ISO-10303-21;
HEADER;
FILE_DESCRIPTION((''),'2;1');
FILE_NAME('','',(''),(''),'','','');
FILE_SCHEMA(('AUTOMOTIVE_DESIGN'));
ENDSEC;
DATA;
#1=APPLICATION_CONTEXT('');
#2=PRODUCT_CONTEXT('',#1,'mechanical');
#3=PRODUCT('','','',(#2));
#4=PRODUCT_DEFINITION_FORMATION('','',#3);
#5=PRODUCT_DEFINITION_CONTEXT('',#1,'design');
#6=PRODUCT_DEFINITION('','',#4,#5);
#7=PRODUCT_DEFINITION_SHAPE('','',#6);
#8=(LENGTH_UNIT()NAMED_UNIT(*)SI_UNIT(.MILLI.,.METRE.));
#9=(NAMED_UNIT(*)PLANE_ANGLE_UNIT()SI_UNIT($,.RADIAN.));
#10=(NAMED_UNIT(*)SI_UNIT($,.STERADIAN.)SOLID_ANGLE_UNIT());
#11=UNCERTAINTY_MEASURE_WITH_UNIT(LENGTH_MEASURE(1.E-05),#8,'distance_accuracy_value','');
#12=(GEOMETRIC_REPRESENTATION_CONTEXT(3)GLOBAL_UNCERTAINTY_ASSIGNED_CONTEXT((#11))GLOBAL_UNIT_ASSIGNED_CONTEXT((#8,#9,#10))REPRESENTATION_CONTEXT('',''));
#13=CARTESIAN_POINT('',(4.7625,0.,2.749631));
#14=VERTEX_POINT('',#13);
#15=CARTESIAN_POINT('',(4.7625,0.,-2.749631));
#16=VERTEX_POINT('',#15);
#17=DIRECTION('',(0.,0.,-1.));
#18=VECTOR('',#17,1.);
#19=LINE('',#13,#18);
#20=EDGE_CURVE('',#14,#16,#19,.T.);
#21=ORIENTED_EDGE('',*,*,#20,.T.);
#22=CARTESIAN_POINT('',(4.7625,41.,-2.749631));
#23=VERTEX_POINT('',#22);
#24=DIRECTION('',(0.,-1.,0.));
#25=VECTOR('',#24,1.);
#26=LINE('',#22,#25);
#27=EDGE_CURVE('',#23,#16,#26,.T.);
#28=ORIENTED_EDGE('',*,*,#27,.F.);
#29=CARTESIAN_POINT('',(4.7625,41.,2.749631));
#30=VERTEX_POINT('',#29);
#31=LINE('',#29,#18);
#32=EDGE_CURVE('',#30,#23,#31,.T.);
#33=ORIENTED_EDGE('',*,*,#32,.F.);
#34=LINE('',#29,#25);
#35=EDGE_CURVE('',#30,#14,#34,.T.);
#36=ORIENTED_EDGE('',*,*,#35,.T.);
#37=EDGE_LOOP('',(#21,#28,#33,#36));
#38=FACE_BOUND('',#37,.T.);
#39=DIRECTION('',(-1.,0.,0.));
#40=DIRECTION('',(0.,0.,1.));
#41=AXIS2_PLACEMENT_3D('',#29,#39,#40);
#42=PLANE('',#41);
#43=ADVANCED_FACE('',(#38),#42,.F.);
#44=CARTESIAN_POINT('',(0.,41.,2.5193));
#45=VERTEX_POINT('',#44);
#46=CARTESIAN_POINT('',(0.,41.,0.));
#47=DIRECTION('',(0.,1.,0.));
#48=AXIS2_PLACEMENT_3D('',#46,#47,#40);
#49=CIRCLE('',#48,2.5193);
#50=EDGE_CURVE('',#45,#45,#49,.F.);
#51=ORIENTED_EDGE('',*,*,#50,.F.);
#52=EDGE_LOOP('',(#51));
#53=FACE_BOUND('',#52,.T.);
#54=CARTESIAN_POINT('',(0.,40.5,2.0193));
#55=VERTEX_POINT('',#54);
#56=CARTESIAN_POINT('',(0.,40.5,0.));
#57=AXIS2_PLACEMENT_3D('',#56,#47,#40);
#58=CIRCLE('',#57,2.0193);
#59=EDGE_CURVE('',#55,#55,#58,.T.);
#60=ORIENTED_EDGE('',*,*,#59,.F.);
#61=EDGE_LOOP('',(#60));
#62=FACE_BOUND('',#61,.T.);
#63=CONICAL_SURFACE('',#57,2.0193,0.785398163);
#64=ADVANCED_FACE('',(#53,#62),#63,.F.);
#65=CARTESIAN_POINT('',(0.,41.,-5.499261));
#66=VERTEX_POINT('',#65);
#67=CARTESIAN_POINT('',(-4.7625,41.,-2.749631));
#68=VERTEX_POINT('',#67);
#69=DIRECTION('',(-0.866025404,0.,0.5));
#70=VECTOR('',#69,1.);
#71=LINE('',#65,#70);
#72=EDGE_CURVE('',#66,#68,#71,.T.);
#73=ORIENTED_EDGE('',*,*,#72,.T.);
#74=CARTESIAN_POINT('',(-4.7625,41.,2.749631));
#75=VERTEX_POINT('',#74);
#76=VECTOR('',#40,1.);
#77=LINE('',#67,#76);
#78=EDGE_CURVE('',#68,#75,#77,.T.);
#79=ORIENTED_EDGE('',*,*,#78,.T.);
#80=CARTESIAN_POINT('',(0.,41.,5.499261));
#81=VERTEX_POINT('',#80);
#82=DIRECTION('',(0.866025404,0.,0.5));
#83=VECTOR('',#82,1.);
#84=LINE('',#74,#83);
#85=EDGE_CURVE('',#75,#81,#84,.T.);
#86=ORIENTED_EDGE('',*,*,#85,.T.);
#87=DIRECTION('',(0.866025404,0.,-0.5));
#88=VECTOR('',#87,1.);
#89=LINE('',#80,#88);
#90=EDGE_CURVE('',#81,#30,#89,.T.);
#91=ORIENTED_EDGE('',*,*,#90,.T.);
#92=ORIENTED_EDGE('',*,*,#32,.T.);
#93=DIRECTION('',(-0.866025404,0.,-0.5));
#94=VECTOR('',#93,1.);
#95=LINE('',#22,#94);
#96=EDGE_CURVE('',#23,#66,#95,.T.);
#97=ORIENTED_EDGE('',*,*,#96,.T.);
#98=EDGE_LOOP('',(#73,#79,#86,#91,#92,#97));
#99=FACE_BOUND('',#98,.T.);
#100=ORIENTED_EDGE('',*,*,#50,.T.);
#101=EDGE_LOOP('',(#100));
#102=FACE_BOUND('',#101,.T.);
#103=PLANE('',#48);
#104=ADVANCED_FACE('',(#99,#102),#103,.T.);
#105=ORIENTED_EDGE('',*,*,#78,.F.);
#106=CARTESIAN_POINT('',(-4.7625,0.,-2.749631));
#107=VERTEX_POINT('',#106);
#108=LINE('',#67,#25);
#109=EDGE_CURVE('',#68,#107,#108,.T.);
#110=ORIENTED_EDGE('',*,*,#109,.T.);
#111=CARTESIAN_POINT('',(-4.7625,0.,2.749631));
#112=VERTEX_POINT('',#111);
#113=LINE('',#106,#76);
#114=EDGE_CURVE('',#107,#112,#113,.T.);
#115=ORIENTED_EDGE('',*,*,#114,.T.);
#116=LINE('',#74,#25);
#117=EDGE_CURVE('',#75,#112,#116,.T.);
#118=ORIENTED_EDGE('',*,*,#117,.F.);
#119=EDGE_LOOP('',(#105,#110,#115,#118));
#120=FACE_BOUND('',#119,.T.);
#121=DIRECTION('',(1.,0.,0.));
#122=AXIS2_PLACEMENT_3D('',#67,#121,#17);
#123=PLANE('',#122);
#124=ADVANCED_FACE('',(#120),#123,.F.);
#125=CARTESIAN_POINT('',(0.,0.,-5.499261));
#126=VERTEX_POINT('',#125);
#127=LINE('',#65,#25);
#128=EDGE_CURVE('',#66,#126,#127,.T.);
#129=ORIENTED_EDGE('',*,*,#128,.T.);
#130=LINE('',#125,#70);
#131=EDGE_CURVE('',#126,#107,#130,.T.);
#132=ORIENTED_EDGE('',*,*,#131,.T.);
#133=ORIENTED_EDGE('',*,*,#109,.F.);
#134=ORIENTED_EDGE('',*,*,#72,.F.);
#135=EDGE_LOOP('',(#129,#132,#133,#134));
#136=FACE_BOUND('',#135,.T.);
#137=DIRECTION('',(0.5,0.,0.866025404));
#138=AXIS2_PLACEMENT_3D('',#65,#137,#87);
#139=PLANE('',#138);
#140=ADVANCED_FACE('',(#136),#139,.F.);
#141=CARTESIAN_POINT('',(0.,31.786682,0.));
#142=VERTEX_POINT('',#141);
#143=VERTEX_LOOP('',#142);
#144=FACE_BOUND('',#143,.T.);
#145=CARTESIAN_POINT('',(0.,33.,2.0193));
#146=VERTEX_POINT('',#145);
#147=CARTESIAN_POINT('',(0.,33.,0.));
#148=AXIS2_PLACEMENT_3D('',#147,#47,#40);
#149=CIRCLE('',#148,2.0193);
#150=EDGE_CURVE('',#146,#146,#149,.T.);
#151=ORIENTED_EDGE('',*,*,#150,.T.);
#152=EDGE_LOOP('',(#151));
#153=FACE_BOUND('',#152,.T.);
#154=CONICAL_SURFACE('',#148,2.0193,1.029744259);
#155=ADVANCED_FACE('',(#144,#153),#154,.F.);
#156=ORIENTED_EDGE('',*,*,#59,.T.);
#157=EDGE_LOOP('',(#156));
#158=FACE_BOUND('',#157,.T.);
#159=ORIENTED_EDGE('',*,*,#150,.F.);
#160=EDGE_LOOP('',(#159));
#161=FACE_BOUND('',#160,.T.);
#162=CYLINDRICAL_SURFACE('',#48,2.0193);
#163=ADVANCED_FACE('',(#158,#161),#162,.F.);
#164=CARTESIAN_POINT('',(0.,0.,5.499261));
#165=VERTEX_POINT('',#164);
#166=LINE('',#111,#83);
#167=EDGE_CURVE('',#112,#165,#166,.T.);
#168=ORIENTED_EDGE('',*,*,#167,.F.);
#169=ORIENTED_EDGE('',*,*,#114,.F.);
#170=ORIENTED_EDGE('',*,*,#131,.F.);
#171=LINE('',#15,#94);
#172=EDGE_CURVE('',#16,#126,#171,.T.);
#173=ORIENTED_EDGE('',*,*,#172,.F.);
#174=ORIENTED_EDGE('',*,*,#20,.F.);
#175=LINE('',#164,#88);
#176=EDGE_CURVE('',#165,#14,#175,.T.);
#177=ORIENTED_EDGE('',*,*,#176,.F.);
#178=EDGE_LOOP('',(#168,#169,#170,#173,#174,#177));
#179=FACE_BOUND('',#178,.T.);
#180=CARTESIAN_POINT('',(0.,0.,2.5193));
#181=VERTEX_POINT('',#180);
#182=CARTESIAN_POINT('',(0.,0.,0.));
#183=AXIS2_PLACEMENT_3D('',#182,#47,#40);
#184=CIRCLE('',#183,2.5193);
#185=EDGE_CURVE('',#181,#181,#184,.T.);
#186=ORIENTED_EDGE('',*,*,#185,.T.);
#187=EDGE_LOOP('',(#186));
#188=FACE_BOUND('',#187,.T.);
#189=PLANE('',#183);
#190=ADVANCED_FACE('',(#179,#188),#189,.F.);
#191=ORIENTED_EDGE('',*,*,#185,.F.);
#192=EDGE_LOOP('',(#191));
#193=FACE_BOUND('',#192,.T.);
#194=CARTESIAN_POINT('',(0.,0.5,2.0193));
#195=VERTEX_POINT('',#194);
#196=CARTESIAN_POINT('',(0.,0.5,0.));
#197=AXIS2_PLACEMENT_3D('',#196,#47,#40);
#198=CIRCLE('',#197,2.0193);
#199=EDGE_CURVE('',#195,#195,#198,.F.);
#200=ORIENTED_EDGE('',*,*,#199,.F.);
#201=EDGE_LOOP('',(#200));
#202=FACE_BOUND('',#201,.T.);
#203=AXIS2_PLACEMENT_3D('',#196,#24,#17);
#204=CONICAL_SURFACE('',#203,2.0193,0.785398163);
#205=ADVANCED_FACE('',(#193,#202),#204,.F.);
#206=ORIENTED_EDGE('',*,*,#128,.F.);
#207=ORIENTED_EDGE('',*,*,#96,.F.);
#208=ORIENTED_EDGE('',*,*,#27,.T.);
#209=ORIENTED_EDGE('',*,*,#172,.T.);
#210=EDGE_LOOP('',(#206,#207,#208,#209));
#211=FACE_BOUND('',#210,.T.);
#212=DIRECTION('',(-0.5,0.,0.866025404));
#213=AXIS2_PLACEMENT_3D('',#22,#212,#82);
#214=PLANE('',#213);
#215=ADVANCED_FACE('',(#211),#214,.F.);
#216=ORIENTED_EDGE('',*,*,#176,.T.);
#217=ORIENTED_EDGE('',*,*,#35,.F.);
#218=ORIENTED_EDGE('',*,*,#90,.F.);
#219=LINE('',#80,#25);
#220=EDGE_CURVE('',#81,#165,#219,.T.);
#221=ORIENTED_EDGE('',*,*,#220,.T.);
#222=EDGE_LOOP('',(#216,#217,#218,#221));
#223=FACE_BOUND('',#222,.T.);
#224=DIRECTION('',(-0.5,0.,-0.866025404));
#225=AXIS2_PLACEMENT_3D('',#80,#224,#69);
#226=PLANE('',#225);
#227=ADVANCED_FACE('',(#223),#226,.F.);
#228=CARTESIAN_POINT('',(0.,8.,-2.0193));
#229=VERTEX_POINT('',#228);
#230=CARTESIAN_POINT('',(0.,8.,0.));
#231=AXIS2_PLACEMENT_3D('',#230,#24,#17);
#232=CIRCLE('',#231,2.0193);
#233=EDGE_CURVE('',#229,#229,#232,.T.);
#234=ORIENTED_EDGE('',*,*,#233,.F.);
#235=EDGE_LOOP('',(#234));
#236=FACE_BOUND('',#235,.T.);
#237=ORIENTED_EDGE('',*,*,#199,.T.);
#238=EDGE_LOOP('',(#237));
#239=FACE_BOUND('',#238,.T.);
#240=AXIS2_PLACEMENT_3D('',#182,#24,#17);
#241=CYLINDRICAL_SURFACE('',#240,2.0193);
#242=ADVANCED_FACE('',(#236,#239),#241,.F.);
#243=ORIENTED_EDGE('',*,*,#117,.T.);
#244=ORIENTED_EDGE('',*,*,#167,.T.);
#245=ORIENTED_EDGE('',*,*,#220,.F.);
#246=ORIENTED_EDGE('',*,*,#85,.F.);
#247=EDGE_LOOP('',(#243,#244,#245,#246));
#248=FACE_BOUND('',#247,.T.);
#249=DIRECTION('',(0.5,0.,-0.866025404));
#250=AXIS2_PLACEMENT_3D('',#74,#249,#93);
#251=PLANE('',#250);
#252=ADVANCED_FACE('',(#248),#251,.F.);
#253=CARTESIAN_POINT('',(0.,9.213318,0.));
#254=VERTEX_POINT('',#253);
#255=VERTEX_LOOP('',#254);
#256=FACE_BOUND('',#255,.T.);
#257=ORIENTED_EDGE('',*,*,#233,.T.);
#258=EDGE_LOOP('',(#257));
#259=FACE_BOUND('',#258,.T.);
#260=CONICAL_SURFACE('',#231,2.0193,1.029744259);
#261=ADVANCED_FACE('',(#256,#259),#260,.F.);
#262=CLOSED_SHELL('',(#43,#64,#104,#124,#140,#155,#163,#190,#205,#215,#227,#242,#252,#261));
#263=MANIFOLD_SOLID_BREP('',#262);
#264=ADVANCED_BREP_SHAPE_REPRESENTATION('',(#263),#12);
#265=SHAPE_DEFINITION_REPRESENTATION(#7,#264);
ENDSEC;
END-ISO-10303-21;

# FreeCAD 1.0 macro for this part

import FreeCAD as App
import Part
import Sketcher
Q = App.Units.Quantity


def edges_at(feature, points):
    """Names of the edges that pass closest to the given points."""
    edges = feature.Shape.Edges
    near = lambda p: min(range(len(edges)), key=lambda i: edges[i].distToShape(Part.Vertex(*p))[0])
    return sorted({f"Edge{near(p) + 1}" for p in points})


def add_polygon(sketch, points):
    """Adds a closed chain of lines whose ends are joined by coincident constraints."""
    first, n = sketch.GeometryCount, len(points)
    for a, b in zip(points, points[1:] + points[:1]):
        sketch.addGeometry(Part.LineSegment(App.Vector(*a, 0), App.Vector(*b, 0)), False)
    for i in range(n):
        sketch.addConstraint(Sketcher.Constraint("Coincident", first + i, 2, first + (i + 1) % n, 1))

doc = App.newDocument("Part")
body = doc.addObject("PartDesign::Body", "Body")

sketch1 = body.newObject("Sketcher::SketchObject", "Sketch")
sketch1.AttachmentSupport = (doc.getObject("XZ_Plane"), [""])
sketch1.MapMode = "FlatFace"
add_polygon(sketch1, [(0, 5), (5, 3), (5, -3), (0, -5), (-5, -3), (-5, 3)])
sketch1.addConstraint([
    Sketcher.Constraint("Vertical", 1),
    Sketcher.Constraint("Vertical", 4),
    Sketcher.Constraint("Symmetric", 0, 2, 3, 2, -1, 1),
    Sketcher.Constraint("Symmetric", 2, 2, 5, 2, -1, 1),
    Sketcher.Constraint("PointOnObject", 2, 2, -2),
    Sketcher.Constraint("Parallel", 2, 5),
    Sketcher.Constraint("Horizontal", 1, 2, 3, 2),
    Sketcher.Constraint("Angle", 0, Q("-30 deg")),
    Sketcher.Constraint("DistanceX", 3, 2, 1, 2, 9.525),
    Sketcher.Constraint("DistanceY", 1, 2, 1, 1, 5.499261),
])
pad1 = body.newObject("PartDesign::Pad", "Pad")
pad1.Profile = sketch1
pad1.Length = 41
pad1.Reversed = True

sketch2 = body.newObject("Sketcher::SketchObject", "Sketch001")
sketch2.AttachmentSupport = (doc.getObject("XZ_Plane"), [""])
sketch2.MapMode = "FlatFace"
sketch2.AttachmentOffset = App.Placement(App.Vector(0, 0, -41), App.Rotation())
sketch2.addGeometry(Part.Circle(App.Vector(0, 0, 0), App.Vector(0, 0, 1), 2), False)
sketch2.addConstraint([
    Sketcher.Constraint("Coincident", 0, 3, -1, 1),
    Sketcher.Constraint("Diameter", 0, 4.0386),
])
doc.recompute()
hole = body.newObject("PartDesign::Hole", "Hole")
hole.Profile = sketch2
hole.ThreadType = "None"
hole.Diameter = 4.0386
hole.DepthType = "Dimension"
hole.Depth = 8
hole.DrillPoint = "Angled"
hole.DrillPointAngle = 118
hole.Reversed = True

sketch3 = body.newObject("Sketcher::SketchObject", "Sketch002")
sketch3.AttachmentSupport = (doc.getObject("XZ_Plane"), [""])
sketch3.MapMode = "FlatFace"
sketch3.addGeometry(Part.Circle(App.Vector(0, 0, 0), App.Vector(0, 0, 1), 2), False)
sketch3.addConstraint([
    Sketcher.Constraint("Coincident", 0, 3, -1, 1),
    Sketcher.Constraint("Diameter", 0, 4.0386),
])
doc.recompute()
hole2 = body.newObject("PartDesign::Hole", "Hole001")
hole2.Profile = sketch3
hole2.ThreadType = "None"
hole2.Diameter = 4.0386
hole2.DepthType = "Dimension"
hole2.Depth = 8
hole2.DrillPoint = "Angled"
hole2.DrillPointAngle = 118
doc.recompute()

chamfer = body.newObject("PartDesign::Chamfer", "Chamfer")
chamfer.Base = (hole2, edges_at(hole2, [(2.019, 41, 0), (-2.019, 0, 0)]))
chamfer.Size = 0.5

doc.recompute()
